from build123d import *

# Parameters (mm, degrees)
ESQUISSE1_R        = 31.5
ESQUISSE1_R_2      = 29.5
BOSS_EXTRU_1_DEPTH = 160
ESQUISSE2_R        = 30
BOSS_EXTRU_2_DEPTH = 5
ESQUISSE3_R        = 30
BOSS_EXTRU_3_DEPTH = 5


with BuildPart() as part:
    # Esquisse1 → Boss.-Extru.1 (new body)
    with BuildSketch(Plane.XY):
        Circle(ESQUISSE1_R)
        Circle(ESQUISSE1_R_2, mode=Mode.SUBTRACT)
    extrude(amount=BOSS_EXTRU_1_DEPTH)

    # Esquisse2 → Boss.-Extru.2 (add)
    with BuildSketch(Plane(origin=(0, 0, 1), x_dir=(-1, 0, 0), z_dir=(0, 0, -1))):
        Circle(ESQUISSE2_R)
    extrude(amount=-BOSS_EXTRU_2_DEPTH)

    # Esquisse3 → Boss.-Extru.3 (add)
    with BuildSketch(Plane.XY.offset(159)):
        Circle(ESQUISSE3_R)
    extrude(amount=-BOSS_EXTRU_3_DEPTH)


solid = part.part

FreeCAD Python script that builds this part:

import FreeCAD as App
import Part
import Sketcher

doc = App.newDocument("Part")
body = doc.addObject("PartDesign::Body", "Body")

sketch1 = body.newObject("Sketcher::SketchObject", "Sketch")
sketch1.AttachmentSupport = (doc.getObject("XY_Plane"), [""])
sketch1.MapMode = "FlatFace"
sketch1.addGeometry(Part.Circle(App.Vector(0, 0, 0), App.Vector(0, 0, 1), 32), False)
sketch1.addGeometry(Part.Circle(App.Vector(0, 0, 0), App.Vector(0, 0, 1), 30), False)
sketch1.addConstraint(Sketcher.Constraint("Coincident", 0, 3, -1, 1))
sketch1.addConstraint(Sketcher.Constraint("Coincident", 1, 3, -1, 1))
sketch1.addConstraint(Sketcher.Constraint("Diameter", 0, 63.0))
sketch1.addConstraint(Sketcher.Constraint("Diameter", 1, 59.0))
pad1 = body.newObject("PartDesign::Pad", "Pad")
pad1.Profile = sketch1
pad1.Length = 160

sketch2 = body.newObject("Sketcher::SketchObject", "Sketch001")
sketch2.AttachmentSupport = (doc.getObject("XY_Plane"), [""])
sketch2.MapMode = "FlatFace"
sketch2.AttachmentOffset = App.Placement(App.Vector(0, 0, 1), App.Rotation())
sketch2.addGeometry(Part.Circle(App.Vector(0, 0, 0), App.Vector(0, 0, 1), 30), False)
sketch2.addConstraint(Sketcher.Constraint("Coincident", 0, 3, -1, 1))
sketch2.addConstraint(Sketcher.Constraint("Diameter", 0, 60.0))
pad2 = body.newObject("PartDesign::Pad", "Pad001")
pad2.Profile = sketch2
pad2.Length = 5

sketch3 = body.newObject("Sketcher::SketchObject", "Sketch002")
sketch3.AttachmentSupport = (doc.getObject("XY_Plane"), [""])
sketch3.MapMode = "FlatFace"
sketch3.AttachmentOffset = App.Placement(App.Vector(0, 0, 159), App.Rotation())
sketch3.addGeometry(Part.Circle(App.Vector(0, 0, 0), App.Vector(0, 0, 1), 30), False)
sketch3.addConstraint(Sketcher.Constraint("Coincident", 0, 3, -1, 1))
sketch3.addConstraint(Sketcher.Constraint("Diameter", 0, 60.0))
pad3 = body.newObject("PartDesign::Pad", "Pad002")
pad3.Profile = sketch3
pad3.Length = 5
pad3.Reversed = True

doc.recompute()
